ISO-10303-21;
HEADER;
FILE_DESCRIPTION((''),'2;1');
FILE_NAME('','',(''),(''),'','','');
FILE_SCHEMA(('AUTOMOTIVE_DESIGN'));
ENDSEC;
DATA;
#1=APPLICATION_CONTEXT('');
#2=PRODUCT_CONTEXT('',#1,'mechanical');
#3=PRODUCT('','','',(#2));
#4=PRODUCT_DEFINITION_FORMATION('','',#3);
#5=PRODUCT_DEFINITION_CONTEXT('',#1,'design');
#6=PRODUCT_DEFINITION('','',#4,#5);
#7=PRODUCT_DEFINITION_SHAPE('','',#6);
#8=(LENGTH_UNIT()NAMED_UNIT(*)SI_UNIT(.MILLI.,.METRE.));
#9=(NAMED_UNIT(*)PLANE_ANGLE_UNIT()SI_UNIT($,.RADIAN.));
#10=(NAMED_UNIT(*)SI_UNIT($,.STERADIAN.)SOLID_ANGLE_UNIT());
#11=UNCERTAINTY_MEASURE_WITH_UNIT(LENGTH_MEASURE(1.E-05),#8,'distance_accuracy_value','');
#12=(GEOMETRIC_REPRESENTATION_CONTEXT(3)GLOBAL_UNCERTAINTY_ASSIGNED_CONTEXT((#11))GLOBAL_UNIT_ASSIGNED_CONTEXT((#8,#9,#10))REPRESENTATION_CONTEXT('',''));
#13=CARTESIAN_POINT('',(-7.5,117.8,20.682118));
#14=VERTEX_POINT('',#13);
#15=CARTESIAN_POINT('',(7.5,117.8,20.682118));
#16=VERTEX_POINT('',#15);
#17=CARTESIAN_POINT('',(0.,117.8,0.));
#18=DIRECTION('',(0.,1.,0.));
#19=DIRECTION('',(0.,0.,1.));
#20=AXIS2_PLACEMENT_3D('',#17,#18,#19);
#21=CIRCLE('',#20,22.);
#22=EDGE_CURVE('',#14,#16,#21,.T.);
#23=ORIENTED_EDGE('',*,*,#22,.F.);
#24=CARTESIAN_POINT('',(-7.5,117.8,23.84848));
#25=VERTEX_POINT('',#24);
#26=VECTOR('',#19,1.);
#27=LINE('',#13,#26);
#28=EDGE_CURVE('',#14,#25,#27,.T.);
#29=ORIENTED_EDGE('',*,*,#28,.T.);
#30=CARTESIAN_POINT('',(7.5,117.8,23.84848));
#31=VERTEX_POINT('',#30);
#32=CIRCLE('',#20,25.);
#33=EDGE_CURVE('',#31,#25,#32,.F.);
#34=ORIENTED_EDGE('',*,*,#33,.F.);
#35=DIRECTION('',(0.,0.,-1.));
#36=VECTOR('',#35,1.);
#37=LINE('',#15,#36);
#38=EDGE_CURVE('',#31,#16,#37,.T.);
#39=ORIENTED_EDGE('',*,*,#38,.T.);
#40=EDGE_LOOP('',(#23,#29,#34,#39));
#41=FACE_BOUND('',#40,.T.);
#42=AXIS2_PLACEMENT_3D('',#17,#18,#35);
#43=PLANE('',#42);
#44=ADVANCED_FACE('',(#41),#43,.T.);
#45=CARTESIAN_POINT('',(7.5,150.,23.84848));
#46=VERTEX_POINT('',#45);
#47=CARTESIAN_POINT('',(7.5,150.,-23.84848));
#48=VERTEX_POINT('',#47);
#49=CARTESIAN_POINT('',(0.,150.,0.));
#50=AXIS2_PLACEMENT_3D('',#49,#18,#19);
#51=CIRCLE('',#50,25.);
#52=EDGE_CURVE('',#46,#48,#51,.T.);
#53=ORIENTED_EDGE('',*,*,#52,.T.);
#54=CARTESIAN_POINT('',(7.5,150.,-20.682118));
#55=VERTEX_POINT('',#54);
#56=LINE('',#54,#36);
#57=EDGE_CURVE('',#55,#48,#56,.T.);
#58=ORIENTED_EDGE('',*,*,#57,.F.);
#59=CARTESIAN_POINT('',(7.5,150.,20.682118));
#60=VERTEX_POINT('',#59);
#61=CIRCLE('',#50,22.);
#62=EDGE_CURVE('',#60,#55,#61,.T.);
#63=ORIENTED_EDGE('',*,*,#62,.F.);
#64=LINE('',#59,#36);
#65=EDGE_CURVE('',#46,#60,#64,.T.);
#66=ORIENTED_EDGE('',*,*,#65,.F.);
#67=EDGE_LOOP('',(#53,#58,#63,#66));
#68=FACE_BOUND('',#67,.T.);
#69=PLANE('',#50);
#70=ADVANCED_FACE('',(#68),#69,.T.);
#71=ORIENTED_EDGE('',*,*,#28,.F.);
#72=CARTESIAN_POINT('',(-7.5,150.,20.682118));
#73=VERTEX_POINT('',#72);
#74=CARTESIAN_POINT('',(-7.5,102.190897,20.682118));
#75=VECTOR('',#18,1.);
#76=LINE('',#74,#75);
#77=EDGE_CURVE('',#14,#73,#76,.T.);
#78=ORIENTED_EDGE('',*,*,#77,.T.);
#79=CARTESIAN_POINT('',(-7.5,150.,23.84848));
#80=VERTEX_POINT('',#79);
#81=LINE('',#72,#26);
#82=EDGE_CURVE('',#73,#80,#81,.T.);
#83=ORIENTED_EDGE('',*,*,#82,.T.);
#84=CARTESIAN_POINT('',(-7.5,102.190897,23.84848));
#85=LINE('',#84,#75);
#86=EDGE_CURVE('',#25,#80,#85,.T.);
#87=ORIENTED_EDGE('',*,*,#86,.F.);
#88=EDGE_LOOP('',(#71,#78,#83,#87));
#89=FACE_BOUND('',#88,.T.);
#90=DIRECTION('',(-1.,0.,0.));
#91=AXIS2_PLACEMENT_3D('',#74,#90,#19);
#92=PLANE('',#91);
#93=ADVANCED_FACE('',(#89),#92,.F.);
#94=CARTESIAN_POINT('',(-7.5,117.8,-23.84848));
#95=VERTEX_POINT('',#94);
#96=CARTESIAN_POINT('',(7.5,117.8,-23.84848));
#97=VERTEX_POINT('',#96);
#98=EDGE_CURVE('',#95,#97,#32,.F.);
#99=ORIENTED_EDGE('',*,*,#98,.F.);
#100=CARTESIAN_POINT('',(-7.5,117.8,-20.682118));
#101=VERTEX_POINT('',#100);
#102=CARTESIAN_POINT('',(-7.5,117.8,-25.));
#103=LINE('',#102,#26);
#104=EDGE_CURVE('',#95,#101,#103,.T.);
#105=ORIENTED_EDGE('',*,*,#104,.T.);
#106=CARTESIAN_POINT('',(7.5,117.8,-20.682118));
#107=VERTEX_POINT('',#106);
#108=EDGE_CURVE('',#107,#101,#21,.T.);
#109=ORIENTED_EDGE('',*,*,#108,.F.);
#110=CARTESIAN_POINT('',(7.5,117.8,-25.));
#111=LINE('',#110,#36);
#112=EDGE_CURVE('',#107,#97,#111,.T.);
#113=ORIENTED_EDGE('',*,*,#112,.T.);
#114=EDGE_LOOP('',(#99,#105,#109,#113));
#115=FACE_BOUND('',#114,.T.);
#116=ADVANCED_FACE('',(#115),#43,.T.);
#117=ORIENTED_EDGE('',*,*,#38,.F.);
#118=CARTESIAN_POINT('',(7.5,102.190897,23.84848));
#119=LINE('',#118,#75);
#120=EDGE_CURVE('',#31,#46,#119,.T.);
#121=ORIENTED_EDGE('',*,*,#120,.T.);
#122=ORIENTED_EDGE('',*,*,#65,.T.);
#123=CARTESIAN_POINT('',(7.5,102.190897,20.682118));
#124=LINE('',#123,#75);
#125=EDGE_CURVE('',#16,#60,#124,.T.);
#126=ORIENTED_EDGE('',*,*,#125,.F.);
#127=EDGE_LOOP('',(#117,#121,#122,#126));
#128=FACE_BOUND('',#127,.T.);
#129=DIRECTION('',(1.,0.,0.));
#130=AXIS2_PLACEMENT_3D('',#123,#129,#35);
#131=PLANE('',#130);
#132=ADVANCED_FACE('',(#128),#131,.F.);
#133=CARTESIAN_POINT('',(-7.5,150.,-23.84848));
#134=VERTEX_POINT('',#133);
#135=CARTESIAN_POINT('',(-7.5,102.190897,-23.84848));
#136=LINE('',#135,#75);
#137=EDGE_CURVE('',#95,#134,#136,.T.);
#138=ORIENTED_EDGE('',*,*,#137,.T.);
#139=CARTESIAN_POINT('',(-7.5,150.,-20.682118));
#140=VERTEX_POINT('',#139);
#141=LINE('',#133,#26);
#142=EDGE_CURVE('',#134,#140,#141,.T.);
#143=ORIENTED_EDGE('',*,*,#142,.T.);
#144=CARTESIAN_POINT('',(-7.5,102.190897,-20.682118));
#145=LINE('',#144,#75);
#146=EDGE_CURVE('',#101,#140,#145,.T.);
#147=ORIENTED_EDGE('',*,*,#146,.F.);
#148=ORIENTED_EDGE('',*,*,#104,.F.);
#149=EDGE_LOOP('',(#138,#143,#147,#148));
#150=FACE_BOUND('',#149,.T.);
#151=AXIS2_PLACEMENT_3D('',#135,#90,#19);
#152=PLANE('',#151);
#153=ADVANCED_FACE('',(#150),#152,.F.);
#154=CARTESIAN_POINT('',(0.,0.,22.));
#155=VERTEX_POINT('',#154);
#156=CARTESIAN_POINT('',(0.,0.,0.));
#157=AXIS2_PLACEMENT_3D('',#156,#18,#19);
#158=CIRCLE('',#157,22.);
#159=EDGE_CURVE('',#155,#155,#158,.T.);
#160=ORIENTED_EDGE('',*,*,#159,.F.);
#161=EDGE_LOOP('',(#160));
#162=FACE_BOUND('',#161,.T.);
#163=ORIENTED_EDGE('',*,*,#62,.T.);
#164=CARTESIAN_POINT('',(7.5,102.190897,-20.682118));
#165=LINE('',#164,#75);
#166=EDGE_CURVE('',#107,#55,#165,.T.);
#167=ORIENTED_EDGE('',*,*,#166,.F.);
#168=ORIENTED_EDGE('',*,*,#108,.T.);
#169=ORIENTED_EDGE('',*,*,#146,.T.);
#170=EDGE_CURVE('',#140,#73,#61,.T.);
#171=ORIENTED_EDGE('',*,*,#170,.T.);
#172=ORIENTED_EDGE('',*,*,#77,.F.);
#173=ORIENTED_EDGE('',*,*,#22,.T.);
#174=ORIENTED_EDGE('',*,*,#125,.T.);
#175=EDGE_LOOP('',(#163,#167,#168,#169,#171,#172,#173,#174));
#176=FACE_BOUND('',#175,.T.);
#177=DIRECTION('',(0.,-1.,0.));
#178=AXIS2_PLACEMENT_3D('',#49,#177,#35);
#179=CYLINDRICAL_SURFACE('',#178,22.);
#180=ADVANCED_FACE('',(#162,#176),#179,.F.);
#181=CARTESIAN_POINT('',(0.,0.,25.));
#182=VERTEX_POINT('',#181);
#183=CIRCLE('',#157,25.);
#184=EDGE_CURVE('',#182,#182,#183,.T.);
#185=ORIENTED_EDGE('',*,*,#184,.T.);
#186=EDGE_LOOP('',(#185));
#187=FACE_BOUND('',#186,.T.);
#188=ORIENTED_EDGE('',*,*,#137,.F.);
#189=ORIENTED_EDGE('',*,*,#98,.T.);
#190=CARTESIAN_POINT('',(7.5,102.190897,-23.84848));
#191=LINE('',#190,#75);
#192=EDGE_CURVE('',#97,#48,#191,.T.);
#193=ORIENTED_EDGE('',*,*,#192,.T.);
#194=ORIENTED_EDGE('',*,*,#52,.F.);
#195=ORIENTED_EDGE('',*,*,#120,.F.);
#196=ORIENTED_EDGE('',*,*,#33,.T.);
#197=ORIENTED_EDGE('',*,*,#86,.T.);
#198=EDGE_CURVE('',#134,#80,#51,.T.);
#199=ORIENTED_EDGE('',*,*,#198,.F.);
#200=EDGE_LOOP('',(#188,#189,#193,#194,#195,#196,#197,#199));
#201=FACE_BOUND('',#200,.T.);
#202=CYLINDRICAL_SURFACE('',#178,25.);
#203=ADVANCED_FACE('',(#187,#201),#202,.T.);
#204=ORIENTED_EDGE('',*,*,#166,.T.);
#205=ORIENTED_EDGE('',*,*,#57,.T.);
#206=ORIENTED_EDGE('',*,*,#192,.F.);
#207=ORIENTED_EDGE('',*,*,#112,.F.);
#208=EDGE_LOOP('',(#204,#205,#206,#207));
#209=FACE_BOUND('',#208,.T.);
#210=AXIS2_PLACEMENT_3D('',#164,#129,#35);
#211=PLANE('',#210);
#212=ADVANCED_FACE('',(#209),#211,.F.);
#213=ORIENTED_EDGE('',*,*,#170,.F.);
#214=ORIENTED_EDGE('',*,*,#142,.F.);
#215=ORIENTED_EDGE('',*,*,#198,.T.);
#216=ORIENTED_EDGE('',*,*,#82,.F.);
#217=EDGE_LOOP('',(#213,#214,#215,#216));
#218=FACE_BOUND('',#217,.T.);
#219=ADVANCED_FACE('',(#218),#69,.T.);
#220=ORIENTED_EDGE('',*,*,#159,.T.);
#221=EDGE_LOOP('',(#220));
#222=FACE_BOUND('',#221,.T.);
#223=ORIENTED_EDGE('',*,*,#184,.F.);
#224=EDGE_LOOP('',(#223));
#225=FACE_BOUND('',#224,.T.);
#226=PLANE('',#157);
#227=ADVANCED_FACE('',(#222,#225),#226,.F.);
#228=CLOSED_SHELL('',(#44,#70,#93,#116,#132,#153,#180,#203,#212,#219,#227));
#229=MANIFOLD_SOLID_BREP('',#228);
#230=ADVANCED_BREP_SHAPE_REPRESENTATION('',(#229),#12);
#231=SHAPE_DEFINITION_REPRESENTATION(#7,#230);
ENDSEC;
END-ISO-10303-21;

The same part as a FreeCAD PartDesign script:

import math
import FreeCAD as App
import Part
import Sketcher
from FreeCAD import Vector

doc = App.newDocument("Part")
body = doc.addObject("PartDesign::Body", "Body")

# Sketch on XZ plane
sketch1 = doc.addObject("Sketcher::SketchObject", "Sketch")
body.addObject(sketch1)
sketch1.AttachmentSupport = (doc.XZ_Plane, [""])
sketch1.MapMode = "FlatFace"
sketch1.addGeometry([
    Part.Circle(Vector(0, 0, 0), Vector(0, 0, 1), 25),
    Part.Circle(Vector(0, 0, 0), Vector(0, 0, 1), 22),
], False)
sketch1.addConstraint([
    Sketcher.Constraint("Coincident", 0, 3, -1, 1),
    Sketcher.Constraint("Coincident", 1, 3, -1, 1),
    Sketcher.Constraint("Diameter", 0, 50.0),
    Sketcher.Constraint("Diameter", 1, 44.0),
])
pad1 = doc.addObject("PartDesign::Pad", "Pad")
body.addObject(pad1)
pad1.Profile = sketch1
pad1.Length = 150
pad1.Reversed = True

# Sketch on XZ plane
sketch2 = doc.addObject("Sketcher::SketchObject", "Sketch001")
body.addObject(sketch2)
sketch2.AttachmentSupport = (doc.XZ_Plane, [""])
sketch2.MapMode = "FlatFace"
sketch2.AttachmentOffset = App.Placement(Vector(0, 0, -117.8), App.Rotation())
sketch2.addGeometry([
    Part.LineSegment(Vector(7.5, 23.8, 0), Vector(7.5, 20.7, 0)),  # 0
    Part.ArcOfCircle(Part.Circle(Vector(0, 0, 0), Vector(0, 0, 1), 22), math.radians(70), math.radians(110)),  # 1
    Part.LineSegment(Vector(-7.5, 20.7, 0), Vector(-7.5, 23.8, 0)),  # 2
    Part.ArcOfCircle(Part.Circle(Vector(0, 0, 0), Vector(0, 0, 1), 25), math.radians(73), math.radians(107)),  # 3
    Part.LineSegment(Vector(-7.5, -23.8, 0), Vector(-7.5, -20.7, 0)),  # 4
    Part.ArcOfCircle(Part.Circle(Vector(0, 0, 0), Vector(0, 0, 1), 22), math.radians(-110), math.radians(-70)),  # 5
    Part.LineSegment(Vector(7.5, -20.7, 0), Vector(7.5, -23.8, 0)),  # 6
    Part.ArcOfCircle(Part.Circle(Vector(0, 0, 0), Vector(0, 0, 1), 25), math.radians(-107), math.radians(-73)),  # 7
], False)
sketch2.addConstraint([
    Sketcher.Constraint("Coincident", 0, 2, 1, 1),
    Sketcher.Constraint("Coincident", 1, 2, 2, 1),
    Sketcher.Constraint("Coincident", 2, 2, 3, 2),
    Sketcher.Constraint("Coincident", 3, 1, 0, 1),
    Sketcher.Constraint("Coincident", 4, 2, 5, 1),
    Sketcher.Constraint("Coincident", 5, 2, 6, 1),
    Sketcher.Constraint("Coincident", 6, 2, 7, 2),
    Sketcher.Constraint("Coincident", 7, 1, 4, 1),
    Sketcher.Constraint("Vertical", 0),
    Sketcher.Constraint("Vertical", 2),
    Sketcher.Constraint("Vertical", 4),
    Sketcher.Constraint("Vertical", 6),
    Sketcher.Constraint("Coincident", 1, 3, -1, 1),
    Sketcher.Constraint("Coincident", 3, 3, -1, 1),
    Sketcher.Constraint("Coincident", 5, 3, -1, 1),
    Sketcher.Constraint("Coincident", 7, 3, -1, 1),
    Sketcher.Constraint("Equal", 1, 5),
    Sketcher.Constraint("Equal", 3, 7),
    Sketcher.Constraint("Horizontal", 0, 2, 1, 2),
    Sketcher.Constraint("Horizontal", 4, 2, 5, 2),
    Sketcher.Constraint("Vertical", 2, 2, 4, 2),
    Sketcher.Constraint("Radius", 1, 22.0),
    Sketcher.Constraint("Radius", 3, 25.0),
    Sketcher.Constraint("DistanceX", 1, 2, 0, 2, 15.0),
])
pocket1 = doc.addObject("PartDesign::Pocket", "Pocket")
body.addObject(pocket1)
pocket1.Profile = sketch2
pocket1.Length = 32.2

doc.recompute()
